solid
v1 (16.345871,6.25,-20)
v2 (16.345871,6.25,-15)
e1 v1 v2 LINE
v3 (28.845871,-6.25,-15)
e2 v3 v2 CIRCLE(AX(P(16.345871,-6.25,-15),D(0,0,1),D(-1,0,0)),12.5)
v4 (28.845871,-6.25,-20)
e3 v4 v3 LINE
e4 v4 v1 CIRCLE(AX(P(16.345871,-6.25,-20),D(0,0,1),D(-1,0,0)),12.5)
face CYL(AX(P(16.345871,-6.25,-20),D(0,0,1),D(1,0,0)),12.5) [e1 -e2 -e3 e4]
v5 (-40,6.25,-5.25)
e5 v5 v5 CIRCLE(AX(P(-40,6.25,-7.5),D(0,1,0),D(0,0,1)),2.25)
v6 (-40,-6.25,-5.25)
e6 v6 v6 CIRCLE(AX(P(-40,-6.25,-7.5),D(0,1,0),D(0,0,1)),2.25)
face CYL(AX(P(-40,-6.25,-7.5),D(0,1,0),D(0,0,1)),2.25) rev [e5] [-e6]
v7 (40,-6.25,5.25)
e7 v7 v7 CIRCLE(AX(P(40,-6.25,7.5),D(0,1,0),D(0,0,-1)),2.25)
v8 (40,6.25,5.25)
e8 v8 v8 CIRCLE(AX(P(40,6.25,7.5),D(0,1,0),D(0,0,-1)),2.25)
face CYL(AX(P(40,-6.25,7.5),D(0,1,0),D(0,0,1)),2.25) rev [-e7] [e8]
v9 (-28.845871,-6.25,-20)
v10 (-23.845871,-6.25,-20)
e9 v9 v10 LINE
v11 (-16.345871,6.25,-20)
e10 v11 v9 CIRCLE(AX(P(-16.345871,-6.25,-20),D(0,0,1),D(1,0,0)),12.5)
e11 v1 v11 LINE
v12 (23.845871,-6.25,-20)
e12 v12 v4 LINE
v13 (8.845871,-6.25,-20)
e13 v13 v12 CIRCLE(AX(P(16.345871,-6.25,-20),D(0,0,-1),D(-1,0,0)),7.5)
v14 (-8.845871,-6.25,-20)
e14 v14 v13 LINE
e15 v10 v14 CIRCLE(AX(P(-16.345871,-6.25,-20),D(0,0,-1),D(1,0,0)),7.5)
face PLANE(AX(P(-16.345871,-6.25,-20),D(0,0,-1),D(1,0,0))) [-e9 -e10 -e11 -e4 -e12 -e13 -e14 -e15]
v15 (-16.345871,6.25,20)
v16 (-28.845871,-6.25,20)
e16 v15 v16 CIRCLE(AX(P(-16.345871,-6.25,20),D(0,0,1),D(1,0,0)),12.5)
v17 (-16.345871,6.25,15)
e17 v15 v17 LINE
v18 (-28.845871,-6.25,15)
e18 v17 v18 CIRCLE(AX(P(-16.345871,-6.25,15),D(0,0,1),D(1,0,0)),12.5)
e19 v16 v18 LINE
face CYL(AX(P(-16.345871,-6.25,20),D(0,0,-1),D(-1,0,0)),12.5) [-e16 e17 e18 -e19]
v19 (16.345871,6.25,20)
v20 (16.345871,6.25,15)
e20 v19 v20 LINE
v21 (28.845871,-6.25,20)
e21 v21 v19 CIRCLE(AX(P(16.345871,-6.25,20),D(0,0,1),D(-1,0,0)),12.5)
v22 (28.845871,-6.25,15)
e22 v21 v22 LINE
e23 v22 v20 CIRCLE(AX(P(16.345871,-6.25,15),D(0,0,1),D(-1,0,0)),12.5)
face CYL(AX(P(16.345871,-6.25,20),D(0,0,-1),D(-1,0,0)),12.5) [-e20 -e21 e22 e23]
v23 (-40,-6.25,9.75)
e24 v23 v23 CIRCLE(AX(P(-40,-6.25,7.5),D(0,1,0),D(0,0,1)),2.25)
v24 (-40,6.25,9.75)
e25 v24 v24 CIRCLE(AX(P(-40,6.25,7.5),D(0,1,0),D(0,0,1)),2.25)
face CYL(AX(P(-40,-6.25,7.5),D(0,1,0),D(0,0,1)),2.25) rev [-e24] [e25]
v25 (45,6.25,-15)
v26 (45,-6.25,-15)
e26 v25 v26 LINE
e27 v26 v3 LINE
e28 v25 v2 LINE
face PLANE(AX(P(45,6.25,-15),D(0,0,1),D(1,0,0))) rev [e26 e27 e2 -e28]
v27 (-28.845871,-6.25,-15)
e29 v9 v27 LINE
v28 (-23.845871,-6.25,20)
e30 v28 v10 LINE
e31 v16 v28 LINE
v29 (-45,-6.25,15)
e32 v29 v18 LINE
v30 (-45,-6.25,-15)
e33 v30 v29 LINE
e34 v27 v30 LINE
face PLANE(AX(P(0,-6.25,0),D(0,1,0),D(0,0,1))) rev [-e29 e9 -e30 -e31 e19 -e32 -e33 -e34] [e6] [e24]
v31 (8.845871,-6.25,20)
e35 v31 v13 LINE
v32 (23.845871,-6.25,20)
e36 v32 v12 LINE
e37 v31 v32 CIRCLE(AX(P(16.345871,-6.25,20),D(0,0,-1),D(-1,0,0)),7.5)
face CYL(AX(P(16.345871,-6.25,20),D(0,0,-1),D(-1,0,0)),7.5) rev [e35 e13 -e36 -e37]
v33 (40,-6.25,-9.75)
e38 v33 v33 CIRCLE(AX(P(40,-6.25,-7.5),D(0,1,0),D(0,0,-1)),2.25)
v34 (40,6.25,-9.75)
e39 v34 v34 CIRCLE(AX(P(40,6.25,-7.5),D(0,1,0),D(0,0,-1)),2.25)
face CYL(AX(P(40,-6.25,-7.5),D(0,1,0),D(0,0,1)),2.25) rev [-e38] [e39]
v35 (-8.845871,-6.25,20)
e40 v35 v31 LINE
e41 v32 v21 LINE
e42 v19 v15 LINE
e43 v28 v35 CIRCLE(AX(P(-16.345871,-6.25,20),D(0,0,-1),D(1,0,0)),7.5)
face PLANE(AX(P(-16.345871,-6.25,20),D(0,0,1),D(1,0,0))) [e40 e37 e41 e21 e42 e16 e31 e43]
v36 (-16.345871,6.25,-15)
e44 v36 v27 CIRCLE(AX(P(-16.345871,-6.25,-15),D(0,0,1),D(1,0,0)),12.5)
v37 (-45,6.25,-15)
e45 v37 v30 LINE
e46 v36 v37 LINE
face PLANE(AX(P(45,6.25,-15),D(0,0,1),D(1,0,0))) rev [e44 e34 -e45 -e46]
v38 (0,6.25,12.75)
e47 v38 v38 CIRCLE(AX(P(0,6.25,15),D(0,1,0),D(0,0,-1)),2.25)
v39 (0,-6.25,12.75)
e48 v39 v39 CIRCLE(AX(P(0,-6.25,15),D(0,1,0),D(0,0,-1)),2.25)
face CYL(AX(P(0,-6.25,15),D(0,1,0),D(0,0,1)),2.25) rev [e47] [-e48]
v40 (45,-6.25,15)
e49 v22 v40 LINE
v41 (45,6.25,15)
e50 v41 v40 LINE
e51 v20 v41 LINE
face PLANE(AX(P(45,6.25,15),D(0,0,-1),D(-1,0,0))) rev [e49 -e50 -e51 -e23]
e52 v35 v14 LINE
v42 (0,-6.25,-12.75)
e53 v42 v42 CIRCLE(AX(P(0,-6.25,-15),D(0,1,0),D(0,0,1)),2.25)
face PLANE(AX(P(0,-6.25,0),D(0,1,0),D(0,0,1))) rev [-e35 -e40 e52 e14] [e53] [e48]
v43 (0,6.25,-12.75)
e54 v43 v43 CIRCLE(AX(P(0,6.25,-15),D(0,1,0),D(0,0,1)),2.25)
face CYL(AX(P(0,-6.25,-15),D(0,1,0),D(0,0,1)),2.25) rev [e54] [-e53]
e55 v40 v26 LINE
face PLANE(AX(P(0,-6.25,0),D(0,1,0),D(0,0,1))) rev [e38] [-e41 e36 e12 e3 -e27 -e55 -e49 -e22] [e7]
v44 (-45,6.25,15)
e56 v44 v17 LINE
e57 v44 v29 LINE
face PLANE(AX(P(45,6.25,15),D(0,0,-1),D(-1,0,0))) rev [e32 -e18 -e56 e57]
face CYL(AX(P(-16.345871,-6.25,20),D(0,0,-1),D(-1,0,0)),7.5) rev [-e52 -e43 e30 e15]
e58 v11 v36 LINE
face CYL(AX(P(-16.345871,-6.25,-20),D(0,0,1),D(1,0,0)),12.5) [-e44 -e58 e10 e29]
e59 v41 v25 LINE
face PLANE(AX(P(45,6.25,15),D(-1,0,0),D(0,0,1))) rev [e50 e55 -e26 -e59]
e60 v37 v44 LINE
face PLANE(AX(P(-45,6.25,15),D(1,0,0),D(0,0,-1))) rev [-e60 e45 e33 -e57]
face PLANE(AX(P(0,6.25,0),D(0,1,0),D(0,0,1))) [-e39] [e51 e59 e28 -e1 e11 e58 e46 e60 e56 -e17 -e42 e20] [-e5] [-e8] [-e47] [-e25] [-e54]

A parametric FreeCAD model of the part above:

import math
import FreeCAD as App
import Part
import Sketcher
from FreeCAD import Vector
Q = App.Units.Quantity

doc = App.newDocument("Part")
body = doc.addObject("PartDesign::Body", "Body")

# Sketch on XZ plane
sketch1 = body.newObject("Sketcher::SketchObject", "Sketch")
sketch1.AttachmentSupport = (doc.getObject("XZ_Plane"), [""])
sketch1.MapMode = "FlatFace"
sketch1.addGeometry(Part.LineSegment(Vector(-45, -15, 0), Vector(-45, 15, 0)), False)
sketch1.addGeometry(Part.LineSegment(Vector(-45, 15, 0), Vector(45, 15, 0)), False)
sketch1.addGeometry(Part.LineSegment(Vector(45, 15, 0), Vector(45, -15, 0)), False)
sketch1.addGeometry(Part.LineSegment(Vector(45, -15, 0), Vector(-45, -15, 0)), False)
sketch1.addConstraint(Sketcher.Constraint("Coincident", 0, 2, 1, 1))
sketch1.addConstraint(Sketcher.Constraint("Coincident", 1, 2, 2, 1))
sketch1.addConstraint(Sketcher.Constraint("Coincident", 2, 2, 3, 1))
sketch1.addConstraint(Sketcher.Constraint("Coincident", 3, 2, 0, 1))
sketch1.addConstraint(Sketcher.Constraint("Vertical", 0))
sketch1.addConstraint(Sketcher.Constraint("Horizontal", 1))
sketch1.addConstraint(Sketcher.Constraint("Vertical", 2))
sketch1.addConstraint(Sketcher.Constraint("Horizontal", 3))
sketch1.addConstraint(Sketcher.Constraint("Symmetric", 0, 2, 2, 2, -1, 1))
sketch1.addConstraint(Sketcher.Constraint("DistanceX", 1, 1, 1, 2, Q("90 mm")))
sketch1.addConstraint(Sketcher.Constraint("DistanceY", 0, 1, 0, 2, Q("30 mm")))
pad1 = body.newObject("PartDesign::Pad", "Pad")
pad1.Profile = sketch1
pad1.Length = 12.5
pad1.Midplane = True

# Sketch on XY plane
sketch2 = body.newObject("Sketcher::SketchObject", "Sketch001")
sketch2.AttachmentSupport = (doc.getObject("XY_Plane"), [""])
sketch2.MapMode = "FlatFace"
sketch2.AttachmentOffset = App.Placement(Vector(0, 0, 15), App.Rotation())
sketch2.addGeometry(Part.LineSegment(Vector(-28.845871, -6.25, 0), Vector(-23.845871, -6.25, 0)), False)
sketch2.addGeometry(Part.ArcOfCircle(Part.Circle(Vector(-16.345871, -6.25, 0), Vector(0, 0, 1), 7.5), math.radians(0), math.radians(180)), False)
sketch2.addGeometry(Part.LineSegment(Vector(-8.845871, -6.25, 0), Vector(8.845871, -6.25, 0)), False)
sketch2.addGeometry(Part.ArcOfCircle(Part.Circle(Vector(16.345871, -6.25, 0), Vector(0, 0, 1), 7.5), math.radians(0), math.radians(180)), False)
sketch2.addGeometry(Part.LineSegment(Vector(23.845871, -6.25, 0), Vector(28.845871, -6.25, 0)), False)
sketch2.addGeometry(Part.ArcOfCircle(Part.Circle(Vector(16.345871, -6.25, 0), Vector(0, 0, 1), 12.5), math.radians(0), math.radians(90)), False)
sketch2.addGeometry(Part.LineSegment(Vector(16.345871, 6.25, 0), Vector(-16.345871, 6.25, 0)), False)
sketch2.addGeometry(Part.ArcOfCircle(Part.Circle(Vector(-16.345871, -6.25, 0), Vector(0, 0, 1), 12.5), math.radians(90), math.radians(180)), False)
sketch2.addConstraint(Sketcher.Constraint("Coincident", 0, 2, 1, 2))
sketch2.addConstraint(Sketcher.Constraint("Coincident", 1, 1, 2, 1))
sketch2.addConstraint(Sketcher.Constraint("Coincident", 2, 2, 3, 2))
sketch2.addConstraint(Sketcher.Constraint("Coincident", 3, 1, 4, 1))
sketch2.addConstraint(Sketcher.Constraint("Coincident", 4, 2, 5, 1))
sketch2.addConstraint(Sketcher.Constraint("Tangent", 5, 2, 6, 1))
sketch2.addConstraint(Sketcher.Constraint("Tangent", 6, 2, 7, 1))
sketch2.addConstraint(Sketcher.Constraint("Coincident", 7, 2, 0, 1))
sketch2.addConstraint(Sketcher.Constraint("Horizontal", 0))
sketch2.addConstraint(Sketcher.Constraint("Horizontal", 2))
sketch2.addConstraint(Sketcher.Constraint("Horizontal", 4))
sketch2.addConstraint(Sketcher.Constraint("Horizontal", 6))
sketch2.addConstraint(Sketcher.Constraint("Coincident", 5, 3, 3, 3))
sketch2.addConstraint(Sketcher.Constraint("Coincident", 7, 3, 1, 3))
sketch2.addConstraint(Sketcher.Constraint("Equal", 1, 3))
sketch2.addConstraint(Sketcher.Constraint("Equal", 5, 7))
sketch2.addConstraint(Sketcher.Constraint("Symmetric", 0, 2, 3, 1, -2))
sketch2.addConstraint(Sketcher.Constraint("Horizontal", 7, 3, 0, 2))
sketch2.addConstraint(Sketcher.Constraint("Horizontal", 0, 2, 1, 1))
sketch2.addConstraint(Sketcher.Constraint("Radius", 1, Q("7.5 mm")))
sketch2.addConstraint(Sketcher.Constraint("Radius", 5, Q("12.5 mm")))
sketch2.addConstraint(Sketcher.Constraint("DistanceY", 1, 3, -1, 1, Q("6.25 mm")))
sketch2.addConstraint(Sketcher.Constraint("DistanceX", 2, 1, 2, 2, Q("17.691742 mm")))
pad2 = body.newObject("PartDesign::Pad", "Pad001")
pad2.Profile = sketch2
pad2.Length = 5
doc.recompute()

mirrored = body.newObject("PartDesign::Mirrored", "Mirrored")
mirrored.Originals = [pad2]
mirrored.MirrorPlane = (doc.getObject("XY_Plane"), [""])
body.Tip = mirrored

# Sketch on XY plane
sketch3 = body.newObject("Sketcher::SketchObject", "Sketch002")
sketch3.AttachmentSupport = (doc.getObject("XY_Plane"), [""])
sketch3.MapMode = "FlatFace"
sketch3.AttachmentOffset = App.Placement(Vector(0, 0, 15), App.Rotation())
sketch3.addGeometry(Part.LineSegment(Vector(-23.845871, -6.25, 0), Vector(-8.845871, -6.25, 0)), False)
sketch3.addGeometry(Part.ArcOfCircle(Part.Circle(Vector(-16.345871, -6.25, 0), Vector(0, 0, 1), 7.5), math.radians(0), math.radians(180)), False)
sketch3.addGeometry(Part.LineSegment(Vector(8.845871, -6.25, 0), Vector(23.845871, -6.25, 0)), False)
sketch3.addGeometry(Part.ArcOfCircle(Part.Circle(Vector(16.345871, -6.25, 0), Vector(0, 0, 1), 7.5), math.radians(0), math.radians(180)), False)
sketch3.addConstraint(Sketcher.Constraint("Coincident", 0, 1, 1, 2))
sketch3.addConstraint(Sketcher.Constraint("Coincident", 1, 1, 0, 2))
sketch3.addConstraint(Sketcher.Constraint("Coincident", 2, 1, 3, 2))
sketch3.addConstraint(Sketcher.Constraint("Coincident", 3, 1, 2, 2))
sketch3.addConstraint(Sketcher.Constraint("Horizontal", 0))
sketch3.addConstraint(Sketcher.Constraint("Horizontal", 2))
sketch3.addConstraint(Sketcher.Constraint("Equal", 1, 3))
sketch3.addConstraint(Sketcher.Constraint("Symmetric", 1, 3, 3, 3, -2))
sketch3.addConstraint(Sketcher.Constraint("Horizontal", 3, 3, 0, 1))
sketch3.addConstraint(Sketcher.Constraint("Horizontal", 1, 1, 2, 1))
sketch3.addConstraint(Sketcher.Constraint("Radius", 1, Q("7.5 mm")))
sketch3.addConstraint(Sketcher.Constraint("DistanceY", 1, 3, -1, 1, Q("6.25 mm")))
sketch3.addConstraint(Sketcher.Constraint("DistanceX", 1, 3, -1, 1, Q("16.345871 mm")))
pocket1 = body.newObject("PartDesign::Pocket", "Pocket")
pocket1.Profile = sketch3
pocket1.Length = 41

# Sketch on XZ plane
sketch4 = body.newObject("Sketcher::SketchObject", "Sketch003")
sketch4.AttachmentSupport = (doc.getObject("XZ_Plane"), [""])
sketch4.MapMode = "FlatFace"
sketch4.AttachmentOffset = App.Placement(Vector(0, 0, -6.25), App.Rotation())
sketch4.addGeometry(Part.Circle(Vector(-40, -7.5, 0), Vector(0, 0, 1), 2.25), False)
sketch4.addGeometry(Part.Circle(Vector(-40, 7.5, 0), Vector(0, 0, 1), 2.25), False)
sketch4.addGeometry(Part.Circle(Vector(40, 7.5, 0), Vector(0, 0, 1), 2.25), False)
sketch4.addGeometry(Part.Circle(Vector(40, -7.5, 0), Vector(0, 0, 1), 2.25), False)
sketch4.addGeometry(Part.Circle(Vector(0, -15, 0), Vector(0, 0, 1), 2.25), False)
sketch4.addGeometry(Part.Circle(Vector(0, 15, 0), Vector(0, 0, 1), 2.25), False)
sketch4.addConstraint(Sketcher.Constraint("Equal", 0, 1))
sketch4.addConstraint(Sketcher.Constraint("Equal", 1, 2))
sketch4.addConstraint(Sketcher.Constraint("Equal", 2, 3))
sketch4.addConstraint(Sketcher.Constraint("Equal", 3, 4))
sketch4.addConstraint(Sketcher.Constraint("Equal", 4, 5))
sketch4.addConstraint(Sketcher.Constraint("Symmetric", 0, 3, 2, 3, -1, 1))
sketch4.addConstraint(Sketcher.Constraint("Symmetric", 1, 3, 3, 3, -1, 1))
sketch4.addConstraint(Sketcher.Constraint("Symmetric", 4, 3, 5, 3, -1, 1))
sketch4.addConstraint(Sketcher.Constraint("Symmetric", 1, 3, 2, 3, -2))
sketch4.addConstraint(Sketcher.Constraint("PointOnObject", 4, 3, -2))
sketch4.addConstraint(Sketcher.Constraint("Diameter", 0, Q("4.5 mm")))
sketch4.addConstraint(Sketcher.Constraint("DistanceX", 0, 3, -1, 1, Q("40 mm")))
sketch4.addConstraint(Sketcher.Constraint("DistanceY", 4, 3, -1, 1, Q("15 mm")))
sketch4.addConstraint(Sketcher.Constraint("DistanceY", 0, 3, 1, 3, Q("15 mm")))
pocket2 = body.newObject("PartDesign::Pocket", "Pocket001")
pocket2.Profile = sketch4
pocket2.Type = "ThroughAll"
pocket2.Reversed = True

doc.recompute()
